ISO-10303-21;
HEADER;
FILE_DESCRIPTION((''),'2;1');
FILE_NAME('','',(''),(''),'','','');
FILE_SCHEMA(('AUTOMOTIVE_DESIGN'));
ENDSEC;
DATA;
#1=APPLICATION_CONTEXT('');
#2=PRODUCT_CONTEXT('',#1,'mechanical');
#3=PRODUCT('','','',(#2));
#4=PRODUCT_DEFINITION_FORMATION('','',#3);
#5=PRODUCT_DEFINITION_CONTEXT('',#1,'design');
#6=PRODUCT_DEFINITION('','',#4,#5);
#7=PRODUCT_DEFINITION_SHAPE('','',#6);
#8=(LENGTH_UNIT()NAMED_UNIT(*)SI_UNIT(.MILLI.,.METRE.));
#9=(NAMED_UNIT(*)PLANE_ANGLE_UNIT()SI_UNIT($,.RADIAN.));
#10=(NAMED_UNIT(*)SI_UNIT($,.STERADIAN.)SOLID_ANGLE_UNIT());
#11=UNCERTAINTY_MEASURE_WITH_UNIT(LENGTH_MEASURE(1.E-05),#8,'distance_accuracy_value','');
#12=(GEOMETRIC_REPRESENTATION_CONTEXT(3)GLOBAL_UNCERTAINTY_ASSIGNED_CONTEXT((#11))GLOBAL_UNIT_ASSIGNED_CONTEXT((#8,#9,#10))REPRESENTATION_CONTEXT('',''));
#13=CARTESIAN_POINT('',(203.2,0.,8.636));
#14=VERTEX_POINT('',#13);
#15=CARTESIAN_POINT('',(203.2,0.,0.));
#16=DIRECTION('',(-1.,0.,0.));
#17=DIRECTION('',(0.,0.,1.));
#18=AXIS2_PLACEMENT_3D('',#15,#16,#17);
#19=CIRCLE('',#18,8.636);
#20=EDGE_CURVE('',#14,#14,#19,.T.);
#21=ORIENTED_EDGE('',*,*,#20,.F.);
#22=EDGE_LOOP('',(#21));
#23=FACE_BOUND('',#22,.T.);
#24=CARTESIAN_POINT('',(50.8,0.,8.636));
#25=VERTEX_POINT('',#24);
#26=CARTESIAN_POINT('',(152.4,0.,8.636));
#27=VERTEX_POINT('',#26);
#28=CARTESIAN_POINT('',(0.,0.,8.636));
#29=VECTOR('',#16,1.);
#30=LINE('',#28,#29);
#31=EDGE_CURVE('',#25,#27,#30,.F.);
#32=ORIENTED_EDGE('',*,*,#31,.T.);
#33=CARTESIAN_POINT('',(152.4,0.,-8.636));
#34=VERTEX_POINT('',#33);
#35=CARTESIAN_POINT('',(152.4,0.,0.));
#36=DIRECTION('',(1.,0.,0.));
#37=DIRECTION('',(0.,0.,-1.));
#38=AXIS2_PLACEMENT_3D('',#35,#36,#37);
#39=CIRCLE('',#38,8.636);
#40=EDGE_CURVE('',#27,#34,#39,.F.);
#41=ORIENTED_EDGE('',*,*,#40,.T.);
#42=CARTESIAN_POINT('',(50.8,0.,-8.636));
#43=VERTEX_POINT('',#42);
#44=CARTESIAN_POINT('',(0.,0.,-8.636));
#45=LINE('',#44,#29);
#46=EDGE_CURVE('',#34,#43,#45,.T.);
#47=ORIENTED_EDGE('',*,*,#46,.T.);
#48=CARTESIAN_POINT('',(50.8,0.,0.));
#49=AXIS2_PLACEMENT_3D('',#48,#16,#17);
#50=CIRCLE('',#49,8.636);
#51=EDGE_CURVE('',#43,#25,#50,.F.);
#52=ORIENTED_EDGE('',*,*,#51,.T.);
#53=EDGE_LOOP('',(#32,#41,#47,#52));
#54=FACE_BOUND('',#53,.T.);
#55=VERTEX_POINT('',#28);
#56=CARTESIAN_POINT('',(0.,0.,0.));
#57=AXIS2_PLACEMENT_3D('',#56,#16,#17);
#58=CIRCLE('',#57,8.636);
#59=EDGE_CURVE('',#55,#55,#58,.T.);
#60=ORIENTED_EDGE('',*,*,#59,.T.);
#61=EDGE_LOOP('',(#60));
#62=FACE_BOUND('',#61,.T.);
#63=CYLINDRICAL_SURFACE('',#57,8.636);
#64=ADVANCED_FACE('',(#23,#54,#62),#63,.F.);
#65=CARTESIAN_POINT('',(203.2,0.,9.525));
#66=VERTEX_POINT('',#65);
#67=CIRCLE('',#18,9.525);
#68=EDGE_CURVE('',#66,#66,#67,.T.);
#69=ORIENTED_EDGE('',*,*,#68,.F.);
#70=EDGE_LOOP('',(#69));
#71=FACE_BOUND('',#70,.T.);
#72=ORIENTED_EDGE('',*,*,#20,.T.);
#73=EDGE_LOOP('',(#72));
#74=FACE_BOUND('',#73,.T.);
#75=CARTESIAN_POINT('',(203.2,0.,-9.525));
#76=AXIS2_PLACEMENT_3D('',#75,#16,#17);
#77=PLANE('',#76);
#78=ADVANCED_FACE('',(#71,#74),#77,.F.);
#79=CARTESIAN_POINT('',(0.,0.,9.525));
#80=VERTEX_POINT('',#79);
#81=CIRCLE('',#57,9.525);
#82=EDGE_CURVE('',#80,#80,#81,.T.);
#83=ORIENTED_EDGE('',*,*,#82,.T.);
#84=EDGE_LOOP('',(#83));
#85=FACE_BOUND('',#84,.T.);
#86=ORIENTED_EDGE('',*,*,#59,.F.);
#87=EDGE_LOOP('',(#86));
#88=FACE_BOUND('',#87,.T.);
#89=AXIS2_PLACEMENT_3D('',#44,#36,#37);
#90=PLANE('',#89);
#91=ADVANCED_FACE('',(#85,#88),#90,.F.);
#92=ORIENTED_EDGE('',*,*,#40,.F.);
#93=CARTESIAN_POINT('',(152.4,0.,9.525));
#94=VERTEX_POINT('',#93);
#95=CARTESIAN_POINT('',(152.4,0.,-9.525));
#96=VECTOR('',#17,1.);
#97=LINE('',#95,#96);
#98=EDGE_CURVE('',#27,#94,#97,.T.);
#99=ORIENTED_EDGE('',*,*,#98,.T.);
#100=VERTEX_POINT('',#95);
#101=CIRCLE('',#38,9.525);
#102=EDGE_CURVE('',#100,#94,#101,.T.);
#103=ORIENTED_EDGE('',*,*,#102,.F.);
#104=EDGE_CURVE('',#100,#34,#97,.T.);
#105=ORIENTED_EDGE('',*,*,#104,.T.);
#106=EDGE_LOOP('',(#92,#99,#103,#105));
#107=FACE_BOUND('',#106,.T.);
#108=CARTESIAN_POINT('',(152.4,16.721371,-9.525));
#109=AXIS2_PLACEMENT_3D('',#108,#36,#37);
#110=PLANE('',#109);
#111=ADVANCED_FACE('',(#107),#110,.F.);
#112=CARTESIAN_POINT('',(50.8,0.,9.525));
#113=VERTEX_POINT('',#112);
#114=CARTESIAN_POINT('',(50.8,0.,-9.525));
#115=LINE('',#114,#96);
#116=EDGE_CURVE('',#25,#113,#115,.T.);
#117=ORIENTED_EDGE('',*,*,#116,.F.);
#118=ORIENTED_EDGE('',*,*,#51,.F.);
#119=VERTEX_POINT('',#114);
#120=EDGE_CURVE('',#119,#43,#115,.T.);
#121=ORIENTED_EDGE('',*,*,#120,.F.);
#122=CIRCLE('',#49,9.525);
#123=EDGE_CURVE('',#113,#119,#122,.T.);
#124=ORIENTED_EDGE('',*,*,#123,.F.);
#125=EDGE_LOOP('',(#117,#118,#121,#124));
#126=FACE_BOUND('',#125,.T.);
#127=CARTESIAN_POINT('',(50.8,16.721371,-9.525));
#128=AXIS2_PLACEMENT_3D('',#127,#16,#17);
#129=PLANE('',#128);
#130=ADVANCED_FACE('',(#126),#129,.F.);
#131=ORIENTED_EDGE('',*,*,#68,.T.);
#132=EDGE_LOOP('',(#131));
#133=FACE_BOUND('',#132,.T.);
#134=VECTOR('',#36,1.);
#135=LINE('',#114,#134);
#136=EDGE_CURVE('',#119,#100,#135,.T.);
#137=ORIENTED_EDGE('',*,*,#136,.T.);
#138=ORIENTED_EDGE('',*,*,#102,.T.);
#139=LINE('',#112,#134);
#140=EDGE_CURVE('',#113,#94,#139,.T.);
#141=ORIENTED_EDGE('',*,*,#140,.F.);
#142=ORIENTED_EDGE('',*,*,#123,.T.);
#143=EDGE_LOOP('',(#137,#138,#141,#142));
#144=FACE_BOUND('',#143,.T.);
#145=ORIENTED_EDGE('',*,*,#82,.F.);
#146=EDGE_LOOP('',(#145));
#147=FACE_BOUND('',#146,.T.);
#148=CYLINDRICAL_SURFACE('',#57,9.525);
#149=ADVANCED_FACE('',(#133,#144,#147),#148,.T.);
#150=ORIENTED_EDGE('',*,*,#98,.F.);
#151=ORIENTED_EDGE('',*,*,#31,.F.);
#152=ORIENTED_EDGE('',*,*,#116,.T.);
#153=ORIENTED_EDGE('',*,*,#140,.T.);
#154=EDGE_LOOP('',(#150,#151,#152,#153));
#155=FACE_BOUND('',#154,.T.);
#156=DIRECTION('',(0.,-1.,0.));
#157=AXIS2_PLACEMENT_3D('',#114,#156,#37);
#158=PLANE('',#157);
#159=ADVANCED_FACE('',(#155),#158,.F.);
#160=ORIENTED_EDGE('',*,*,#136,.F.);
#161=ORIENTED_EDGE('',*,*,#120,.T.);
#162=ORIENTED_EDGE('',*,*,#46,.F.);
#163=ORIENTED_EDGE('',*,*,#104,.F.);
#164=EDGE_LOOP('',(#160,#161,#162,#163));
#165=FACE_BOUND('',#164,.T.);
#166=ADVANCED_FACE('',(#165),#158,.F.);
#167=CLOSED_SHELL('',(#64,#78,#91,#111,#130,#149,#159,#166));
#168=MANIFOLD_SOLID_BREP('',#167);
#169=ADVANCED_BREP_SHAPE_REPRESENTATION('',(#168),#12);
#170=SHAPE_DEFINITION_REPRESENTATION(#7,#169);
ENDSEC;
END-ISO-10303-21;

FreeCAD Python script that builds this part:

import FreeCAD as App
import Part
import Sketcher
Q = App.Units.Quantity


def add_polygon(sketch, points):
    """Adds a closed chain of lines whose ends are joined by coincident constraints."""
    first, n = sketch.GeometryCount, len(points)
    for a, b in zip(points, points[1:] + points[:1]):
        sketch.addGeometry(Part.LineSegment(App.Vector(*a, 0), App.Vector(*b, 0)), False)
    for i in range(n):
        sketch.addConstraint(Sketcher.Constraint("Coincident", first + i, 2, first + (i + 1) % n, 1))

doc = App.newDocument("Part")
params = doc.addObject("Spreadsheet::Sheet", "Params")
for row, (alias, value) in enumerate([
    ("sketch1_width", "8 in"),
    ("sketch1_height", "0.035 in"),
    ("revolution_angle", "360 deg"),
    ("sketch2_width", "4 in"),
], start=1):
    params.set(f"A{row}", alias)
    params.set(f"B{row}", "=" + value)
    params.setAlias(f"B{row}", alias)

body = doc.addObject("PartDesign::Body", "Body")

sketch1 = body.newObject("Sketcher::SketchObject", "Sketch")
sketch1.AttachmentSupport = (doc.getObject("XZ_Plane"), [""])
sketch1.MapMode = "FlatFace"
add_polygon(sketch1, [(0, -9.525), (0, -8.636), (203.2, -8.636), (203.2, -9.525)])
sketch1.addConstraint([
    Sketcher.Constraint("Vertical", 0),
    Sketcher.Constraint("Horizontal", 1),
    Sketcher.Constraint("Vertical", 2),
    Sketcher.Constraint("Horizontal", 3),
    Sketcher.Constraint("PointOnObject", 0, 2, -2),
    Sketcher.Constraint("DistanceX", 1, 1, 1, 2, Q("8 in")),
    Sketcher.Constraint("DistanceY", 0, 1, 0, 2, Q("0.035 in")),
    Sketcher.Constraint("DistanceY", 0, 2, -1, 1, Q("0.34 in")),
])
sketch1.setExpression("Constraints[9]", "Params.sketch1_width")
sketch1.setExpression("Constraints[10]", "Params.sketch1_height")
revolution = body.newObject("PartDesign::Revolution", "Revolution")
revolution.Profile = sketch1
revolution.ReferenceAxis = (sketch1, ["H_Axis"])
revolution.setExpression("Angle", "Params.revolution_angle")

sketch2 = body.newObject("Sketcher::SketchObject", "Sketch001")
sketch2.AttachmentSupport = (doc.getObject("XY_Plane"), [""])
sketch2.MapMode = "FlatFace"
add_polygon(sketch2, [(50.8, 16.721371), (50.8, 0), (152.4, 0), (152.4, 16.721371)])
sketch2.addConstraint([
    Sketcher.Constraint("Vertical", 0),
    Sketcher.Constraint("Horizontal", 1),
    Sketcher.Constraint("Vertical", 2),
    Sketcher.Constraint("Horizontal", 3),
    Sketcher.Constraint("PointOnObject", 0, 2, -1),
    Sketcher.Constraint("DistanceX", 1, 1, 1, 2, Q("4 in")),
    Sketcher.Constraint("DistanceX", -1, 1, 0, 2, Q("2 in")),
    Sketcher.Constraint("DistanceY", 0, 2, 0, 1, 16.721371),
])
sketch2.setExpression("Constraints[9]", "Params.sketch2_width")
pocket1 = body.newObject("PartDesign::Pocket", "Pocket")
pocket1.Profile = sketch2
pocket1.Type = "ThroughAll"
pocket1.Midplane = True

doc.recompute()
